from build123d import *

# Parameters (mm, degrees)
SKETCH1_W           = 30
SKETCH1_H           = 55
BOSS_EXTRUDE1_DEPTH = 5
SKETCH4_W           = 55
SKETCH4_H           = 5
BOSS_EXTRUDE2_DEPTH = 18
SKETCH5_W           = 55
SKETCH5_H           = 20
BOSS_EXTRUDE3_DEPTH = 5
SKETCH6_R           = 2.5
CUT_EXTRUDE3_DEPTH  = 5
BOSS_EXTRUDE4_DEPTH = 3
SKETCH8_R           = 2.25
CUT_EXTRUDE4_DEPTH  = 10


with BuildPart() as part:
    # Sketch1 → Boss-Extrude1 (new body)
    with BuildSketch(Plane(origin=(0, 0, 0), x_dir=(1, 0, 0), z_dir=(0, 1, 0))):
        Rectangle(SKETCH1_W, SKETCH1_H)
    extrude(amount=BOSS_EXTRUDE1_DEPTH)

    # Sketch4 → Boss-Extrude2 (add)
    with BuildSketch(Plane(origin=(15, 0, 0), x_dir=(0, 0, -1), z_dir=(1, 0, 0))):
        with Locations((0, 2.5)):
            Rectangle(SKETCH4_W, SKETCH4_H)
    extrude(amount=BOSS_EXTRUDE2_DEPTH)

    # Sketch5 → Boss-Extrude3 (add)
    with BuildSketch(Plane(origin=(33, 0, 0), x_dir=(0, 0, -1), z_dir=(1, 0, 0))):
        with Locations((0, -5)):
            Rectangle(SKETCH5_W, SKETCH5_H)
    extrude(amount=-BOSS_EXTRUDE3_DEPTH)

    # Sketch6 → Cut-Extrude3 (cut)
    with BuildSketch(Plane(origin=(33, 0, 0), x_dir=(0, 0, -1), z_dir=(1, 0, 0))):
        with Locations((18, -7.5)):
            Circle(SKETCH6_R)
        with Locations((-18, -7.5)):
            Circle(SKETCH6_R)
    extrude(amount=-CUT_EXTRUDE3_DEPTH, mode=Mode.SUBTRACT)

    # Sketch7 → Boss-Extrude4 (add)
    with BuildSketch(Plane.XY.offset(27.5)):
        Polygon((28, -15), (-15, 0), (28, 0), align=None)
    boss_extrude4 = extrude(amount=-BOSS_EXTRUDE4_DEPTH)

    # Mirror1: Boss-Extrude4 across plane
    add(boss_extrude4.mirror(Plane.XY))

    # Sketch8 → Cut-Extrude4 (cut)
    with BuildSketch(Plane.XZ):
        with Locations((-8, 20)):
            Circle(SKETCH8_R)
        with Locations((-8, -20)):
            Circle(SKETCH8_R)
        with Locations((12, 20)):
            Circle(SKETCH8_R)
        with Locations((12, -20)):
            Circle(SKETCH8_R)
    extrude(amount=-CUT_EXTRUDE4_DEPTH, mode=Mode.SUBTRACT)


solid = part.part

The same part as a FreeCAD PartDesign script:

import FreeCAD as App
import Part
import Sketcher
from FreeCAD import Vector

doc = App.newDocument("Part")
body = doc.addObject("PartDesign::Body", "Body")

sketch1 = doc.addObject("Sketcher::SketchObject", "Sketch")
body.addObject(sketch1)
sketch1.AttachmentSupport = (doc.XZ_Plane, [""])
sketch1.MapMode = "FlatFace"
sketch1.addGeometry([
    Part.LineSegment(Vector(-15, -27.5, 0), Vector(-15, 27.5, 0)),
    Part.LineSegment(Vector(-15, 27.5, 0), Vector(15, 27.5, 0)),
    Part.LineSegment(Vector(15, 27.5, 0), Vector(15, -27.5, 0)),
    Part.LineSegment(Vector(15, -27.5, 0), Vector(-15, -27.5, 0)),
], False)
sketch1.addConstraint([
    Sketcher.Constraint("Coincident", 0, 2, 1, 1),
    Sketcher.Constraint("Coincident", 1, 2, 2, 1),
    Sketcher.Constraint("Coincident", 2, 2, 3, 1),
    Sketcher.Constraint("Coincident", 3, 2, 0, 1),
    Sketcher.Constraint("Vertical", 0),
    Sketcher.Constraint("Horizontal", 1),
    Sketcher.Constraint("Vertical", 2),
    Sketcher.Constraint("Horizontal", 3),
    Sketcher.Constraint("Symmetric", 0, 2, 2, 2, -1, 1),
    Sketcher.Constraint("DistanceX", 1, 1, 1, 2, 30.0),
    Sketcher.Constraint("DistanceY", 0, 1, 0, 2, 55.0),
])
pad1 = doc.addObject("PartDesign::Pad", "Pad")
body.addObject(pad1)
pad1.Profile = sketch1
pad1.Length = 5
pad1.Reversed = True

sketch2 = doc.addObject("Sketcher::SketchObject", "Sketch001")
body.addObject(sketch2)
sketch2.AttachmentSupport = (doc.YZ_Plane, [""])
sketch2.MapMode = "FlatFace"
sketch2.AttachmentOffset = App.Placement(Vector(0, 0, 15), App.Rotation())
sketch2.addGeometry([
    Part.LineSegment(Vector(5, 27.5, 0), Vector(0, 27.5, 0)),
    Part.LineSegment(Vector(0, 27.5, 0), Vector(0, -27.5, 0)),
    Part.LineSegment(Vector(0, -27.5, 0), Vector(5, -27.5, 0)),
    Part.LineSegment(Vector(5, -27.5, 0), Vector(5, 27.5, 0)),
], False)
sketch2.addConstraint([
    Sketcher.Constraint("Coincident", 0, 2, 1, 1),
    Sketcher.Constraint("Coincident", 1, 2, 2, 1),
    Sketcher.Constraint("Coincident", 2, 2, 3, 1),
    Sketcher.Constraint("Coincident", 3, 2, 0, 1),
    Sketcher.Constraint("Horizontal", 0),
    Sketcher.Constraint("Vertical", 1),
    Sketcher.Constraint("Horizontal", 2),
    Sketcher.Constraint("Vertical", 3),
    Sketcher.Constraint("Symmetric", 0, 2, 1, 2, -1, 1),
    Sketcher.Constraint("DistanceX", 0, 2, 0, 1, 5.0),
    Sketcher.Constraint("DistanceY", 1, 2, 1, 1, 55.0),
])
pad2 = doc.addObject("PartDesign::Pad", "Pad001")
body.addObject(pad2)
pad2.Profile = sketch2
pad2.Length = 18

sketch3 = doc.addObject("Sketcher::SketchObject", "Sketch002")
body.addObject(sketch3)
sketch3.AttachmentSupport = (doc.YZ_Plane, [""])
sketch3.MapMode = "FlatFace"
sketch3.AttachmentOffset = App.Placement(Vector(0, 0, 33), App.Rotation())
sketch3.addGeometry([
    Part.LineSegment(Vector(5, 27.5, 0), Vector(-15, 27.5, 0)),
    Part.LineSegment(Vector(-15, 27.5, 0), Vector(-15, -27.5, 0)),
    Part.LineSegment(Vector(-15, -27.5, 0), Vector(5, -27.5, 0)),
    Part.LineSegment(Vector(5, -27.5, 0), Vector(5, 27.5, 0)),
], False)
sketch3.addConstraint([
    Sketcher.Constraint("Coincident", 0, 2, 1, 1),
    Sketcher.Constraint("Coincident", 1, 2, 2, 1),
    Sketcher.Constraint("Coincident", 2, 2, 3, 1),
    Sketcher.Constraint("Coincident", 3, 2, 0, 1),
    Sketcher.Constraint("Horizontal", 0),
    Sketcher.Constraint("Vertical", 1),
    Sketcher.Constraint("Horizontal", 2),
    Sketcher.Constraint("Vertical", 3),
    Sketcher.Constraint("DistanceX", 0, 2, 0, 1, 20.0),
    Sketcher.Constraint("DistanceY", 1, 2, 1, 1, 55.0),
    Sketcher.Constraint("DistanceX", 0, 2, -1, 1, 15.0),
    Sketcher.Constraint("DistanceY", -1, 1, 0, 2, 27.5),
])
pad3 = doc.addObject("PartDesign::Pad", "Pad002")
body.addObject(pad3)
pad3.Profile = sketch3
pad3.Length = 5
pad3.Reversed = True

sketch4 = doc.addObject("Sketcher::SketchObject", "Sketch003")
body.addObject(sketch4)
sketch4.AttachmentSupport = (doc.YZ_Plane, [""])
sketch4.MapMode = "FlatFace"
sketch4.AttachmentOffset = App.Placement(Vector(0, 0, 33), App.Rotation())
sketch4.addGeometry([
    Part.Circle(Vector(-7.5, -18, 0), Vector(0, 0, 1), 2.5),
    Part.Circle(Vector(-7.5, 18, 0), Vector(0, 0, 1), 2.5),
], False)
sketch4.addConstraint([
    Sketcher.Constraint("Equal", 0, 1),
    Sketcher.Constraint("Symmetric", 0, 3, 1, 3, -1),
    Sketcher.Constraint("Diameter", 0, 5.0),
    Sketcher.Constraint("DistanceY", 0, 3, -1, 1, 18.0),
    Sketcher.Constraint("DistanceX", 0, 3, -1, 1, 7.5),
])
pocket1 = doc.addObject("PartDesign::Pocket", "Pocket")
body.addObject(pocket1)
pocket1.Profile = sketch4
pocket1.Length = 5

sketch5 = doc.addObject("Sketcher::SketchObject", "Sketch004")
body.addObject(sketch5)
sketch5.AttachmentSupport = (doc.XY_Plane, [""])
sketch5.MapMode = "FlatFace"
sketch5.AttachmentOffset = App.Placement(Vector(0, 0, 27.5), App.Rotation())
sketch5.addGeometry([
    Part.LineSegment(Vector(-15, 0, 0), Vector(28, -15, 0)),
    Part.LineSegment(Vector(28, -15, 0), Vector(28, 0, 0)),
    Part.LineSegment(Vector(28, 0, 0), Vector(-15, 0, 0)),
], False)
sketch5.addConstraint([
    Sketcher.Constraint("Coincident", 0, 2, 1, 1),
    Sketcher.Constraint("Coincident", 1, 2, 2, 1),
    Sketcher.Constraint("Coincident", 2, 2, 0, 1),
    Sketcher.Constraint("Vertical", 1),
    Sketcher.Constraint("Horizontal", 2),
    Sketcher.Constraint("PointOnObject", 1, 2, -1),
    Sketcher.Constraint("DistanceX", 2, 2, 2, 1, 43.0),
    Sketcher.Constraint("DistanceY", 1, 1, 1, 2, 15.0),
    Sketcher.Constraint("DistanceX", -1, 1, 0, 2, 28.0),
])
pad4 = doc.addObject("PartDesign::Pad", "Pad003")
body.addObject(pad4)
pad4.Profile = sketch5
pad4.Length = 3
pad4.Reversed = True
doc.recompute()

mirrored = doc.addObject("PartDesign::Mirrored", "Mirrored")
body.addObject(mirrored)
mirrored.Originals = [pad4]
mirrored.MirrorPlane = (doc.XY_Plane, [""])
body.Tip = mirrored

sketch6 = doc.addObject("Sketcher::SketchObject", "Sketch005")
body.addObject(sketch6)
sketch6.AttachmentSupport = (doc.XZ_Plane, [""])
sketch6.MapMode = "FlatFace"
sketch6.addGeometry([
    Part.Circle(Vector(-8, 20, 0), Vector(0, 0, 1), 2.25),
    Part.Circle(Vector(-8, -20, 0), Vector(0, 0, 1), 2.25),
    Part.Circle(Vector(12, 20, 0), Vector(0, 0, 1), 2.25),
    Part.Circle(Vector(12, -20, 0), Vector(0, 0, 1), 2.25),
], False)
sketch6.addConstraint([
    Sketcher.Constraint("Equal", 0, 1),
    Sketcher.Constraint("Equal", 1, 2),
    Sketcher.Constraint("Equal", 2, 3),
    Sketcher.Constraint("Symmetric", 0, 3, 1, 3, -1),
    Sketcher.Constraint("Symmetric", 2, 3, 3, 3, -1),
    Sketcher.Constraint("Horizontal", 0, 3, 2, 3),
    Sketcher.Constraint("Diameter", 0, 4.5),
    Sketcher.Constraint("DistanceX", 0, 3, -1, 1, 8.0),
    Sketcher.Constraint("DistanceY", -1, 1, 0, 3, 20.0),
    Sketcher.Constraint("DistanceX", -1, 1, 2, 3, 12.0),
])
pocket2 = doc.addObject("PartDesign::Pocket", "Pocket001")
body.addObject(pocket2)
pocket2.Profile = sketch6
pocket2.Length = 10

doc.recompute()
